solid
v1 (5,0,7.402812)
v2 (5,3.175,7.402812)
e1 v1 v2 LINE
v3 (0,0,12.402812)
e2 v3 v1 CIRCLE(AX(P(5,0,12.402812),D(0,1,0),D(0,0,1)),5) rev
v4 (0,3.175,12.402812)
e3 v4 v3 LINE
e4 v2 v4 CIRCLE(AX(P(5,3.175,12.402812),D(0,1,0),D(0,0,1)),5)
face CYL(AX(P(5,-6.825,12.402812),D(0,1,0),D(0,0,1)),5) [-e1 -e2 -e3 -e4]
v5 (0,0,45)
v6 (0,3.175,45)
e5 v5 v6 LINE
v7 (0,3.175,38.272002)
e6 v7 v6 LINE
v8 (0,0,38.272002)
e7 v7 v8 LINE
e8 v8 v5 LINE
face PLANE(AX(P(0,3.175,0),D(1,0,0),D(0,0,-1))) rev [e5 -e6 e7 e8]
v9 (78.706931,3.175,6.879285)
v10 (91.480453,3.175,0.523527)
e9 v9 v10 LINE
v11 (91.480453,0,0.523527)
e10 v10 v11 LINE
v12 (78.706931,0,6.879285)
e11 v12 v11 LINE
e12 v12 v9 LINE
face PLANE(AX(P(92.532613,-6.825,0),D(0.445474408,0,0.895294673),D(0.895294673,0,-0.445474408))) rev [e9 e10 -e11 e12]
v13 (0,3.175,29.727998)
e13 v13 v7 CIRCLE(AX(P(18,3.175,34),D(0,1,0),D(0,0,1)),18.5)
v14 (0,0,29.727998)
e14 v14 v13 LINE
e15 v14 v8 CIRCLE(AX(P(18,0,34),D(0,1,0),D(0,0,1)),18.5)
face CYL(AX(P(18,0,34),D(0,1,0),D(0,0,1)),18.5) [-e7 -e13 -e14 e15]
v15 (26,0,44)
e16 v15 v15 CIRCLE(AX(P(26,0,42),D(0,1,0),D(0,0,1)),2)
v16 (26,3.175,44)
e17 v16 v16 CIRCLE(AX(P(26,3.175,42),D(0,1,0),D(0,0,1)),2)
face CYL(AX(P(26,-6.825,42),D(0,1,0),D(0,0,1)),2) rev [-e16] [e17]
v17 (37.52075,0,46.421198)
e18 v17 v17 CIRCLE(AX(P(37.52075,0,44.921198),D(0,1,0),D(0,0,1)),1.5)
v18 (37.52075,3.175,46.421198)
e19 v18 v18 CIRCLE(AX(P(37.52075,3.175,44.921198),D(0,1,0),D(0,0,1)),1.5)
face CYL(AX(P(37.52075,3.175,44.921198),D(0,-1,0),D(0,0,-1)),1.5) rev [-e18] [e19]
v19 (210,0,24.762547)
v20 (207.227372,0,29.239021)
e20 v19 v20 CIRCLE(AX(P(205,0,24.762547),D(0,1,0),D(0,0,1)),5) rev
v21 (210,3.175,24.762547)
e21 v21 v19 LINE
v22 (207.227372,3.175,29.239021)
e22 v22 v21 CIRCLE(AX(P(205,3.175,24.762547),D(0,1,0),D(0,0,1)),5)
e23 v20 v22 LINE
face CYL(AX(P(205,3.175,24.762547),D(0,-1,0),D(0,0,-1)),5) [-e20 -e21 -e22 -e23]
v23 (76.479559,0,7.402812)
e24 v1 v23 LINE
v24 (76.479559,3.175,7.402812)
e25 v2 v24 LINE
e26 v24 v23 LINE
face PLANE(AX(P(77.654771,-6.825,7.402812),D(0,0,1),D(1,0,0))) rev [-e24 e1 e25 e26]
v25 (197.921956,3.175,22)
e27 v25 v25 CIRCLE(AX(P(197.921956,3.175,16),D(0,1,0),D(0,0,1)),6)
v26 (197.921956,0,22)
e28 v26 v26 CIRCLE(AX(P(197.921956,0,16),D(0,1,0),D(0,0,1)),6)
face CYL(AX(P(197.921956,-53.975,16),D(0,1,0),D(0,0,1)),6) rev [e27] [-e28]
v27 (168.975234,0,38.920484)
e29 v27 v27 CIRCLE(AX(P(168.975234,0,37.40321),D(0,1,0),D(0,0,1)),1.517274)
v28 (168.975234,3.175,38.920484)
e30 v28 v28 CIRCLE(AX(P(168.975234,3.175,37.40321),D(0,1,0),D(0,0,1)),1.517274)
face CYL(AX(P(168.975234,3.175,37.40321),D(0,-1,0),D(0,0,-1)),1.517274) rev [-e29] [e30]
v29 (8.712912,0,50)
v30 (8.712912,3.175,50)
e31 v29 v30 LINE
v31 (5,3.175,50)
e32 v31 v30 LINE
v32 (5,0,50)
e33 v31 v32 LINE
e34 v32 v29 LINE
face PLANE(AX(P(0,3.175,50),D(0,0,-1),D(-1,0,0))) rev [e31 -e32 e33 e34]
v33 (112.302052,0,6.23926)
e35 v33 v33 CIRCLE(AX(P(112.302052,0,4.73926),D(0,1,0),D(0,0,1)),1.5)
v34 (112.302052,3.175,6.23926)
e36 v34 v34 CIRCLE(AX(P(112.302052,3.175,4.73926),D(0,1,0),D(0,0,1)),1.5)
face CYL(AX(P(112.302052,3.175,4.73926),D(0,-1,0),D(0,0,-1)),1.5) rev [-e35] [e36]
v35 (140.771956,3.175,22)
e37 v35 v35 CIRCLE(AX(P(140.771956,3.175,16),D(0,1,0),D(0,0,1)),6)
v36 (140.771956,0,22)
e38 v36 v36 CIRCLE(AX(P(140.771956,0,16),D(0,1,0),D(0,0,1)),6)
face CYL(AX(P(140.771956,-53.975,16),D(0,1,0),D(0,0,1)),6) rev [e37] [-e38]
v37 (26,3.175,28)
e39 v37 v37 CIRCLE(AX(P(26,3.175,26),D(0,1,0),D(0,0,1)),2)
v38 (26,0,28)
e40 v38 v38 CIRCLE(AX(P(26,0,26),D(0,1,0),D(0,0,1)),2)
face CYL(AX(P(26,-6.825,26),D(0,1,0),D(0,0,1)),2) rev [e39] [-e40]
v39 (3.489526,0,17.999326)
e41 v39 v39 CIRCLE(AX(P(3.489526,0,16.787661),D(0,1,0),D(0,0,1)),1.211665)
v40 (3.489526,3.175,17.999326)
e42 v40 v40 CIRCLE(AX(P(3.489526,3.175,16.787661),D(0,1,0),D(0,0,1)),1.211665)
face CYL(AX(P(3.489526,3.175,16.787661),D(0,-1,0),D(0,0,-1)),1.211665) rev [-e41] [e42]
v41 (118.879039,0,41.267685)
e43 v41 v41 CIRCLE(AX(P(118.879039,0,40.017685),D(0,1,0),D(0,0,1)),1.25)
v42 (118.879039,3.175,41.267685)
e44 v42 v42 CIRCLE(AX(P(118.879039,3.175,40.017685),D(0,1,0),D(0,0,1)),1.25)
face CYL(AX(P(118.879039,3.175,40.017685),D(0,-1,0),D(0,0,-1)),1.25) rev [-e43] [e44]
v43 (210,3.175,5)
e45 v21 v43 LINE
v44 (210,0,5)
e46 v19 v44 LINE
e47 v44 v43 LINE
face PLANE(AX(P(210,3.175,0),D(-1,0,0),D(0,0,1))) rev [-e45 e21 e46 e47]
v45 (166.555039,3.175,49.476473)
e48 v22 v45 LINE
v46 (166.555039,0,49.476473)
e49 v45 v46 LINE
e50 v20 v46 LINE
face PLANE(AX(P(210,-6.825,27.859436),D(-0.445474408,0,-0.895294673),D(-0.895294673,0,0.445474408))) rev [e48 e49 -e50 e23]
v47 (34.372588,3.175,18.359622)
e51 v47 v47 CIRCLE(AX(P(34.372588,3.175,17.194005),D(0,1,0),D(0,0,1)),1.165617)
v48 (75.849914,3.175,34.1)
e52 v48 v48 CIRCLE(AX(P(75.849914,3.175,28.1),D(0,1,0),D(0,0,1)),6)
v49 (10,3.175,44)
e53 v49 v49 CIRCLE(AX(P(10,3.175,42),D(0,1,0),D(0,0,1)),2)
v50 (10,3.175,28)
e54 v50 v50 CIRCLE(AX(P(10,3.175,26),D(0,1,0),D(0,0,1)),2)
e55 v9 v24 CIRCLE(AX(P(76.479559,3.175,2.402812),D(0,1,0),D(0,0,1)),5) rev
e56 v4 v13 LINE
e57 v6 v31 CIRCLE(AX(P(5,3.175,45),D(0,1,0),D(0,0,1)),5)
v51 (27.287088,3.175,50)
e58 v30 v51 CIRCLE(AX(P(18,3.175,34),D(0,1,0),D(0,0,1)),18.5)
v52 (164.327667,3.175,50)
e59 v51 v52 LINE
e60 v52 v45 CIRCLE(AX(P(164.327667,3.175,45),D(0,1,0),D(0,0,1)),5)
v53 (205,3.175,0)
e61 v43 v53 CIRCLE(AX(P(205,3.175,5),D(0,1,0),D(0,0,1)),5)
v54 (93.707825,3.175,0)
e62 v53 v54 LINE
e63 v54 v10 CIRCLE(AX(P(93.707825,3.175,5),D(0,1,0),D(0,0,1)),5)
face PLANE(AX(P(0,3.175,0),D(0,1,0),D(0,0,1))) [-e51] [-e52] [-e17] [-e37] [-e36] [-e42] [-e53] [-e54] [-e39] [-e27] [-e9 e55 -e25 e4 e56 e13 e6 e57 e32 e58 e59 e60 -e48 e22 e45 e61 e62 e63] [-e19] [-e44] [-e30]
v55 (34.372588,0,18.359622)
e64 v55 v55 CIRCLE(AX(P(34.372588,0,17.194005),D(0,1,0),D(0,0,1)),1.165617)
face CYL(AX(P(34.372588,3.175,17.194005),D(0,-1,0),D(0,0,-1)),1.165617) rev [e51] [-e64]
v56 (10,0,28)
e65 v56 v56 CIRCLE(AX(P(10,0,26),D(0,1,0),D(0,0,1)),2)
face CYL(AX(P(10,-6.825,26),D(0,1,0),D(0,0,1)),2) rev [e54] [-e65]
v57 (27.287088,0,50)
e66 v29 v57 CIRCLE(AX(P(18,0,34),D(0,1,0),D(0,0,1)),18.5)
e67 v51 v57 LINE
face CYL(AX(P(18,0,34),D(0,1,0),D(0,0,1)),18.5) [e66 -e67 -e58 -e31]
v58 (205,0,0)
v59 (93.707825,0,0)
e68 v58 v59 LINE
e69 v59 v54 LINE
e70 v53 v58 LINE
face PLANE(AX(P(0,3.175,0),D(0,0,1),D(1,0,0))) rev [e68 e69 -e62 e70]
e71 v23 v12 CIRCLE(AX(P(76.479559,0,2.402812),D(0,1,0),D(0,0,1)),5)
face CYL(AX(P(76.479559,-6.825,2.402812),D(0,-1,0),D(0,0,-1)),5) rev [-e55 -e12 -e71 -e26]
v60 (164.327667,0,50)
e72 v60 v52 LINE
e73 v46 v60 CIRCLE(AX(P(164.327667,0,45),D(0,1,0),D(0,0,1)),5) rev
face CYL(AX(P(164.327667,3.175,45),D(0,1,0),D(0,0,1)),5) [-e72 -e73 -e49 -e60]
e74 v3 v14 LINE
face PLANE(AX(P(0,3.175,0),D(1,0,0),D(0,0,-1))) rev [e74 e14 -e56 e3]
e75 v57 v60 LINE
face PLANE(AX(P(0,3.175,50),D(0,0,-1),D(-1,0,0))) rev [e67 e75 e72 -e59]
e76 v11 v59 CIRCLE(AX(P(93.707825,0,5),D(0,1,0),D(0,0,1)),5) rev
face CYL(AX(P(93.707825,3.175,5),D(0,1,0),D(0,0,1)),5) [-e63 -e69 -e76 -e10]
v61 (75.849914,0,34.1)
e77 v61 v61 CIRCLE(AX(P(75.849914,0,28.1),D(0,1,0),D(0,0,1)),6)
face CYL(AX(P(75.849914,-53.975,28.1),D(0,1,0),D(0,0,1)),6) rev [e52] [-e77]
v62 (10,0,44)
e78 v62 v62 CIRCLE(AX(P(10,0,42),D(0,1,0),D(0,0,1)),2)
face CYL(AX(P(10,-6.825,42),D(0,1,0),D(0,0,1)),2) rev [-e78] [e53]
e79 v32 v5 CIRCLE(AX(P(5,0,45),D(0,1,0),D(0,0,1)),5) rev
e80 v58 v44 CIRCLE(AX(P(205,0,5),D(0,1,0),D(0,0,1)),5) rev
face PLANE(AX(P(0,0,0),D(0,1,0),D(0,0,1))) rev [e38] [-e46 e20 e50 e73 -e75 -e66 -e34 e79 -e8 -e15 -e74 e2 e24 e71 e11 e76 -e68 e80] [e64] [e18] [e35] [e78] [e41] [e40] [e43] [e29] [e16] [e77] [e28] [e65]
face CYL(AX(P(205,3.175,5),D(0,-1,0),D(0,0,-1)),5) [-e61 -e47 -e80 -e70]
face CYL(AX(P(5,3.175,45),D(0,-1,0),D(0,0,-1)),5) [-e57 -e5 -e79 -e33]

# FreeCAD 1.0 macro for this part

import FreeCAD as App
import Part
import Sketcher


def edges_at(feature, points):
    """Names of the edges that pass closest to the given points."""
    edges = feature.Shape.Edges
    near = lambda p: min(range(len(edges)), key=lambda i: edges[i].distToShape(Part.Vertex(*p))[0])
    return sorted({f"Edge{near(p) + 1}" for p in points})

doc = App.newDocument("Part")
body = doc.addObject("PartDesign::Body", "Body")

# Sketch on XZ plane
sketch1 = doc.addObject("Sketcher::SketchObject", "Sketch")
body.addObject(sketch1)
sketch1.AttachmentSupport = (doc.XZ_Plane, [""])
sketch1.MapMode = "FlatFace"
sketch1.addGeometry([
    Part.LineSegment(App.Vector(0, 0, 0), App.Vector(0, 50, 0)),  # 0
    Part.LineSegment(App.Vector(0, 50, 0), App.Vector(210, 50, 0)),  # 1
    Part.LineSegment(App.Vector(210, 50, 0), App.Vector(210, 0, 0)),  # 2
    Part.LineSegment(App.Vector(210, 0, 0), App.Vector(0, 0, 0)),  # 3
    Part.Circle(App.Vector(37.5, 44.9, 0), App.Vector(0, 0, 1), 1.5),  # 4
    Part.Circle(App.Vector(118.9, 40, 0), App.Vector(0, 0, 1), 1.2),  # 5
    Part.Circle(App.Vector(169, 37.4, 0), App.Vector(0, 0, 1), 1.5),  # 6
    Part.Circle(App.Vector(3.5, 16.8, 0), App.Vector(0, 0, 1), 1.2),  # 7
    Part.Circle(App.Vector(34.4, 17.2, 0), App.Vector(0, 0, 1), 1.2),  # 8
    Part.Circle(App.Vector(112.3, 4.7, 0), App.Vector(0, 0, 1), 1.5),  # 9
], False)
sketch1.addConstraint([
    Sketcher.Constraint("Coincident", 0, 2, 1, 1),
    Sketcher.Constraint("Coincident", 1, 2, 2, 1),
    Sketcher.Constraint("Coincident", 2, 2, 3, 1),
    Sketcher.Constraint("Coincident", 3, 2, 0, 1),
    Sketcher.Constraint("Vertical", 0),
    Sketcher.Constraint("Horizontal", 1),
    Sketcher.Constraint("Vertical", 2),
    Sketcher.Constraint("Horizontal", 3),
    Sketcher.Constraint("Coincident", 3, 2, -1, 1),
    Sketcher.Constraint("Equal", 4, 9),
    Sketcher.Constraint("Diameter", 4, 3.0),
    Sketcher.Constraint("Diameter", 5, 2.5),
    Sketcher.Constraint("DistanceX", 1, 1, 1, 2, 210.0),
    Sketcher.Constraint("DistanceY", 0, 1, 0, 2, 50.0),
    Sketcher.Constraint("Diameter", 7, 2.42333),
    Sketcher.Constraint("Diameter", 6, 3.034548),
    Sketcher.Constraint("Diameter", 8, 2.331234),
    Sketcher.Constraint("DistanceY", -1, 1, 4, 3, 44.921198),
    Sketcher.Constraint("DistanceY", 9, 3, 7, 3, 12.048401),
    Sketcher.Constraint("DistanceX", -1, 1, 4, 3, 37.52075),
    Sketcher.Constraint("DistanceX", -1, 1, 5, 3, 118.879039),
    Sketcher.Constraint("DistanceY", -1, 1, 6, 3, 37.40321),
    Sketcher.Constraint("DistanceY", -1, 1, 7, 3, 16.787661),
    Sketcher.Constraint("DistanceX", 7, 3, 8, 3, 30.883061),
    Sketcher.Constraint("DistanceX", 8, 3, 5, 3, 84.506452),
    Sketcher.Constraint("DistanceY", 8, 3, 5, 3, 22.82368),
    Sketcher.Constraint("DistanceX", 9, 3, 6, 3, 56.673181),
    Sketcher.Constraint("DistanceY", -1, 1, 5, 3, 40.017685),
    Sketcher.Constraint("DistanceX", -1, 1, 6, 3, 168.975234),
])
pad1 = doc.addObject("PartDesign::Pad", "Pad")
body.addObject(pad1)
pad1.Profile = sketch1
pad1.Length = 3.175
pad1.Reversed = True

# Sketch on XZ plane
sketch2 = doc.addObject("Sketcher::SketchObject", "Sketch001")
body.addObject(sketch2)
sketch2.AttachmentSupport = (doc.XZ_Plane, [""])
sketch2.MapMode = "FlatFace"
sketch2.AttachmentOffset = App.Placement(App.Vector(0, 0, -3.175), App.Rotation())
sketch2.addGeometry([
    Part.Circle(App.Vector(10, 26, 0), App.Vector(0, 0, 1), 2),
    Part.Circle(App.Vector(10, 42, 0), App.Vector(0, 0, 1), 2),
    Part.Circle(App.Vector(26, 26, 0), App.Vector(0, 0, 1), 2),
    Part.Circle(App.Vector(26, 42, 0), App.Vector(0, 0, 1), 2),
], False)
sketch2.addConstraint([
    Sketcher.Constraint("Equal", 0, 1),
    Sketcher.Constraint("Equal", 1, 2),
    Sketcher.Constraint("Equal", 2, 3),
    Sketcher.Constraint("Horizontal", 0, 3, 2, 3),
    Sketcher.Constraint("Horizontal", 1, 3, 3, 3),
    Sketcher.Constraint("Vertical", 0, 3, 1, 3),
    Sketcher.Constraint("Vertical", 2, 3, 3, 3),
    Sketcher.Constraint("Diameter", 0, 4.0),
    Sketcher.Constraint("DistanceX", -1, 1, 0, 3, 10.0),
    Sketcher.Constraint("DistanceY", -1, 1, 0, 3, 26.0),
    Sketcher.Constraint("DistanceY", -1, 1, 1, 3, 42.0),
    Sketcher.Constraint("DistanceX", -1, 1, 2, 3, 26.0),
])
pocket1 = doc.addObject("PartDesign::Pocket", "Pocket")
body.addObject(pocket1)
pocket1.Profile = sketch2
pocket1.Length = 10
pocket1.Reversed = True

# Sketch on XZ plane
sketch3 = doc.addObject("Sketcher::SketchObject", "Sketch002")
body.addObject(sketch3)
sketch3.AttachmentSupport = (doc.XZ_Plane, [""])
sketch3.MapMode = "FlatFace"
sketch3.AttachmentOffset = App.Placement(App.Vector(0, 0, -3.175), App.Rotation())
sketch3.addGeometry([
    Part.Circle(App.Vector(75.8, 28.1, 0), App.Vector(0, 0, 1), 6),
    Part.Circle(App.Vector(140.8, 16, 0), App.Vector(0, 0, 1), 6),
    Part.Circle(App.Vector(18, 34, 0), App.Vector(0, 0, 1), 0.6),
    Part.Circle(App.Vector(197.9, 16, 0), App.Vector(0, 0, 1), 6),
], False)
sketch3.addConstraint([
    Sketcher.Constraint("Equal", 0, 1),
    Sketcher.Constraint("Equal", 1, 3),
    Sketcher.Constraint("Horizontal", 1, 3, 3, 3),
    Sketcher.Constraint("Diameter", 0, 12.0),
    Sketcher.Constraint("DistanceY", -1, 1, 1, 3, 16.0),
    Sketcher.Constraint("DistanceX", -1, 1, 2, 3, 18.0),
    Sketcher.Constraint("DistanceY", -1, 1, 2, 3, 34.0),
    Sketcher.Constraint("DistanceY", -1, 1, 0, 3, 28.1),
    Sketcher.Constraint("Diameter", 2, 1.173991),
    Sketcher.Constraint("DistanceX", 1, 3, 3, 3, 57.15),
    Sketcher.Constraint("DistanceX", -1, 1, 0, 3, 75.849914),
    Sketcher.Constraint("DistanceX", -1, 1, 1, 3, 140.771956),
])
pocket2 = doc.addObject("PartDesign::Pocket", "Pocket001")
body.addObject(pocket2)
pocket2.Profile = sketch3
pocket2.Length = 57.15
pocket2.Reversed = True

# Sketch on XZ plane
sketch4 = doc.addObject("Sketcher::SketchObject", "Sketch003")
body.addObject(sketch4)
sketch4.AttachmentSupport = (doc.XZ_Plane, [""])
sketch4.MapMode = "FlatFace"
sketch4.AttachmentOffset = App.Placement(App.Vector(0, 0, -3.175), App.Rotation())
sketch4.addGeometry([
    Part.LineSegment(App.Vector(210, 28, 0), App.Vector(166, 50, 0)),  # 0
    Part.LineSegment(App.Vector(166, 50, 0), App.Vector(210, 50, 0)),  # 1
    Part.LineSegment(App.Vector(210, 50, 0), App.Vector(210, 28, 0)),  # 2
    Part.LineSegment(App.Vector(78, 7, 0), App.Vector(93, 0, 0)),  # 3
    Part.LineSegment(App.Vector(93, 0, 0), App.Vector(0, 0, 0)),  # 4
    Part.LineSegment(App.Vector(0, 0, 0), App.Vector(0, 7, 0)),  # 5
    Part.LineSegment(App.Vector(0, 7, 0), App.Vector(78, 7, 0)),  # 6
], False)
sketch4.addConstraint([
    Sketcher.Constraint("Coincident", 0, 2, 1, 1),
    Sketcher.Constraint("Coincident", 1, 2, 2, 1),
    Sketcher.Constraint("Coincident", 2, 2, 0, 1),
    Sketcher.Constraint("Coincident", 3, 2, 4, 1),
    Sketcher.Constraint("Coincident", 4, 2, 5, 1),
    Sketcher.Constraint("Coincident", 5, 2, 6, 1),
    Sketcher.Constraint("Coincident", 6, 2, 3, 1),
    Sketcher.Constraint("Horizontal", 1),
    Sketcher.Constraint("Vertical", 2),
    Sketcher.Constraint("Horizontal", 4),
    Sketcher.Constraint("Vertical", 5),
    Sketcher.Constraint("Horizontal", 6),
    Sketcher.Constraint("Coincident", 4, 2, -1, 1),
    Sketcher.Constraint("Parallel", 0, 3),
    Sketcher.Constraint("DistanceY", -1, 1, 0, 2, 50.0),
    Sketcher.Constraint("DistanceX", -1, 1, 1, 2, 210.0),
    Sketcher.Constraint("DistanceX", 6, 1, 6, 2, 77.654771),
    Sketcher.Constraint("Distance", 0, 49.701091),
    Sketcher.Constraint("DistanceX", 1, 1, 1, 2, 44.497122),
    Sketcher.Constraint("DistanceX", 4, 2, 4, 1, 92.532613),
])
pocket3 = doc.addObject("PartDesign::Pocket", "Pocket002")
body.addObject(pocket3)
pocket3.Profile = sketch4
pocket3.Length = 10
pocket3.Reversed = True
doc.recompute()

fillet = doc.addObject("PartDesign::Fillet", "Fillet")
body.addObject(fillet)
fillet.Base = (pocket3, edges_at(pocket3, [
    (210, 1.587, 0),
    (0, 1.587, 50),
    (92.533, 1.587, 0),
    (210, 1.587, 27.859),
    (165.503, 1.587, 50),
    (77.655, 1.587, 7.403),
    (0, 1.587, 7.403),
]))
fillet.Radius = 5

# Sketch on XZ plane
sketch5 = doc.addObject("Sketcher::SketchObject", "Sketch004")
body.addObject(sketch5)
sketch5.AttachmentSupport = (doc.XZ_Plane, [""])
sketch5.MapMode = "FlatFace"
sketch5.AttachmentOffset = App.Placement(App.Vector(0, 0, -3.175), App.Rotation())
sketch5.addGeometry([
    Part.Circle(App.Vector(18, 34, 0), App.Vector(0, 0, 1), 18.5),  # 0
    Part.Circle(App.Vector(10, 42, 0), App.Vector(0, 0, 1), 2),  # 1
    Part.Circle(App.Vector(26, 42, 0), App.Vector(0, 0, 1), 2),  # 2
    Part.Circle(App.Vector(10, 26, 0), App.Vector(0, 0, 1), 2),  # 3
    Part.Circle(App.Vector(26, 26, 0), App.Vector(0, 0, 1), 2),  # 4
], False)
sketch5.addConstraint([
    Sketcher.Constraint("Equal", 1, 2),
    Sketcher.Constraint("Equal", 2, 3),
    Sketcher.Constraint("Equal", 3, 4),
    Sketcher.Constraint("Horizontal", 1, 3, 2, 3),
    Sketcher.Constraint("Horizontal", 3, 3, 4, 3),
    Sketcher.Constraint("Vertical", 1, 3, 3, 3),
    Sketcher.Constraint("Vertical", 2, 3, 4, 3),
    Sketcher.Constraint("Diameter", 0, 37.0),
    Sketcher.Constraint("Diameter", 1, 4.0),
    Sketcher.Constraint("DistanceX", -1, 1, 0, 3, 18.0),
    Sketcher.Constraint("DistanceY", -1, 1, 0, 3, 34.0),
    Sketcher.Constraint("DistanceX", -1, 1, 1, 3, 10.0),
    Sketcher.Constraint("DistanceY", -1, 1, 1, 3, 42.0),
    Sketcher.Constraint("DistanceX", -1, 1, 2, 3, 26.0),
    Sketcher.Constraint("DistanceY", -1, 1, 3, 3, 26.0),
])
pad2 = doc.addObject("PartDesign::Pad", "Pad001")
body.addObject(pad2)
pad2.Profile = sketch5
pad2.Length = 3.175

doc.recompute()
